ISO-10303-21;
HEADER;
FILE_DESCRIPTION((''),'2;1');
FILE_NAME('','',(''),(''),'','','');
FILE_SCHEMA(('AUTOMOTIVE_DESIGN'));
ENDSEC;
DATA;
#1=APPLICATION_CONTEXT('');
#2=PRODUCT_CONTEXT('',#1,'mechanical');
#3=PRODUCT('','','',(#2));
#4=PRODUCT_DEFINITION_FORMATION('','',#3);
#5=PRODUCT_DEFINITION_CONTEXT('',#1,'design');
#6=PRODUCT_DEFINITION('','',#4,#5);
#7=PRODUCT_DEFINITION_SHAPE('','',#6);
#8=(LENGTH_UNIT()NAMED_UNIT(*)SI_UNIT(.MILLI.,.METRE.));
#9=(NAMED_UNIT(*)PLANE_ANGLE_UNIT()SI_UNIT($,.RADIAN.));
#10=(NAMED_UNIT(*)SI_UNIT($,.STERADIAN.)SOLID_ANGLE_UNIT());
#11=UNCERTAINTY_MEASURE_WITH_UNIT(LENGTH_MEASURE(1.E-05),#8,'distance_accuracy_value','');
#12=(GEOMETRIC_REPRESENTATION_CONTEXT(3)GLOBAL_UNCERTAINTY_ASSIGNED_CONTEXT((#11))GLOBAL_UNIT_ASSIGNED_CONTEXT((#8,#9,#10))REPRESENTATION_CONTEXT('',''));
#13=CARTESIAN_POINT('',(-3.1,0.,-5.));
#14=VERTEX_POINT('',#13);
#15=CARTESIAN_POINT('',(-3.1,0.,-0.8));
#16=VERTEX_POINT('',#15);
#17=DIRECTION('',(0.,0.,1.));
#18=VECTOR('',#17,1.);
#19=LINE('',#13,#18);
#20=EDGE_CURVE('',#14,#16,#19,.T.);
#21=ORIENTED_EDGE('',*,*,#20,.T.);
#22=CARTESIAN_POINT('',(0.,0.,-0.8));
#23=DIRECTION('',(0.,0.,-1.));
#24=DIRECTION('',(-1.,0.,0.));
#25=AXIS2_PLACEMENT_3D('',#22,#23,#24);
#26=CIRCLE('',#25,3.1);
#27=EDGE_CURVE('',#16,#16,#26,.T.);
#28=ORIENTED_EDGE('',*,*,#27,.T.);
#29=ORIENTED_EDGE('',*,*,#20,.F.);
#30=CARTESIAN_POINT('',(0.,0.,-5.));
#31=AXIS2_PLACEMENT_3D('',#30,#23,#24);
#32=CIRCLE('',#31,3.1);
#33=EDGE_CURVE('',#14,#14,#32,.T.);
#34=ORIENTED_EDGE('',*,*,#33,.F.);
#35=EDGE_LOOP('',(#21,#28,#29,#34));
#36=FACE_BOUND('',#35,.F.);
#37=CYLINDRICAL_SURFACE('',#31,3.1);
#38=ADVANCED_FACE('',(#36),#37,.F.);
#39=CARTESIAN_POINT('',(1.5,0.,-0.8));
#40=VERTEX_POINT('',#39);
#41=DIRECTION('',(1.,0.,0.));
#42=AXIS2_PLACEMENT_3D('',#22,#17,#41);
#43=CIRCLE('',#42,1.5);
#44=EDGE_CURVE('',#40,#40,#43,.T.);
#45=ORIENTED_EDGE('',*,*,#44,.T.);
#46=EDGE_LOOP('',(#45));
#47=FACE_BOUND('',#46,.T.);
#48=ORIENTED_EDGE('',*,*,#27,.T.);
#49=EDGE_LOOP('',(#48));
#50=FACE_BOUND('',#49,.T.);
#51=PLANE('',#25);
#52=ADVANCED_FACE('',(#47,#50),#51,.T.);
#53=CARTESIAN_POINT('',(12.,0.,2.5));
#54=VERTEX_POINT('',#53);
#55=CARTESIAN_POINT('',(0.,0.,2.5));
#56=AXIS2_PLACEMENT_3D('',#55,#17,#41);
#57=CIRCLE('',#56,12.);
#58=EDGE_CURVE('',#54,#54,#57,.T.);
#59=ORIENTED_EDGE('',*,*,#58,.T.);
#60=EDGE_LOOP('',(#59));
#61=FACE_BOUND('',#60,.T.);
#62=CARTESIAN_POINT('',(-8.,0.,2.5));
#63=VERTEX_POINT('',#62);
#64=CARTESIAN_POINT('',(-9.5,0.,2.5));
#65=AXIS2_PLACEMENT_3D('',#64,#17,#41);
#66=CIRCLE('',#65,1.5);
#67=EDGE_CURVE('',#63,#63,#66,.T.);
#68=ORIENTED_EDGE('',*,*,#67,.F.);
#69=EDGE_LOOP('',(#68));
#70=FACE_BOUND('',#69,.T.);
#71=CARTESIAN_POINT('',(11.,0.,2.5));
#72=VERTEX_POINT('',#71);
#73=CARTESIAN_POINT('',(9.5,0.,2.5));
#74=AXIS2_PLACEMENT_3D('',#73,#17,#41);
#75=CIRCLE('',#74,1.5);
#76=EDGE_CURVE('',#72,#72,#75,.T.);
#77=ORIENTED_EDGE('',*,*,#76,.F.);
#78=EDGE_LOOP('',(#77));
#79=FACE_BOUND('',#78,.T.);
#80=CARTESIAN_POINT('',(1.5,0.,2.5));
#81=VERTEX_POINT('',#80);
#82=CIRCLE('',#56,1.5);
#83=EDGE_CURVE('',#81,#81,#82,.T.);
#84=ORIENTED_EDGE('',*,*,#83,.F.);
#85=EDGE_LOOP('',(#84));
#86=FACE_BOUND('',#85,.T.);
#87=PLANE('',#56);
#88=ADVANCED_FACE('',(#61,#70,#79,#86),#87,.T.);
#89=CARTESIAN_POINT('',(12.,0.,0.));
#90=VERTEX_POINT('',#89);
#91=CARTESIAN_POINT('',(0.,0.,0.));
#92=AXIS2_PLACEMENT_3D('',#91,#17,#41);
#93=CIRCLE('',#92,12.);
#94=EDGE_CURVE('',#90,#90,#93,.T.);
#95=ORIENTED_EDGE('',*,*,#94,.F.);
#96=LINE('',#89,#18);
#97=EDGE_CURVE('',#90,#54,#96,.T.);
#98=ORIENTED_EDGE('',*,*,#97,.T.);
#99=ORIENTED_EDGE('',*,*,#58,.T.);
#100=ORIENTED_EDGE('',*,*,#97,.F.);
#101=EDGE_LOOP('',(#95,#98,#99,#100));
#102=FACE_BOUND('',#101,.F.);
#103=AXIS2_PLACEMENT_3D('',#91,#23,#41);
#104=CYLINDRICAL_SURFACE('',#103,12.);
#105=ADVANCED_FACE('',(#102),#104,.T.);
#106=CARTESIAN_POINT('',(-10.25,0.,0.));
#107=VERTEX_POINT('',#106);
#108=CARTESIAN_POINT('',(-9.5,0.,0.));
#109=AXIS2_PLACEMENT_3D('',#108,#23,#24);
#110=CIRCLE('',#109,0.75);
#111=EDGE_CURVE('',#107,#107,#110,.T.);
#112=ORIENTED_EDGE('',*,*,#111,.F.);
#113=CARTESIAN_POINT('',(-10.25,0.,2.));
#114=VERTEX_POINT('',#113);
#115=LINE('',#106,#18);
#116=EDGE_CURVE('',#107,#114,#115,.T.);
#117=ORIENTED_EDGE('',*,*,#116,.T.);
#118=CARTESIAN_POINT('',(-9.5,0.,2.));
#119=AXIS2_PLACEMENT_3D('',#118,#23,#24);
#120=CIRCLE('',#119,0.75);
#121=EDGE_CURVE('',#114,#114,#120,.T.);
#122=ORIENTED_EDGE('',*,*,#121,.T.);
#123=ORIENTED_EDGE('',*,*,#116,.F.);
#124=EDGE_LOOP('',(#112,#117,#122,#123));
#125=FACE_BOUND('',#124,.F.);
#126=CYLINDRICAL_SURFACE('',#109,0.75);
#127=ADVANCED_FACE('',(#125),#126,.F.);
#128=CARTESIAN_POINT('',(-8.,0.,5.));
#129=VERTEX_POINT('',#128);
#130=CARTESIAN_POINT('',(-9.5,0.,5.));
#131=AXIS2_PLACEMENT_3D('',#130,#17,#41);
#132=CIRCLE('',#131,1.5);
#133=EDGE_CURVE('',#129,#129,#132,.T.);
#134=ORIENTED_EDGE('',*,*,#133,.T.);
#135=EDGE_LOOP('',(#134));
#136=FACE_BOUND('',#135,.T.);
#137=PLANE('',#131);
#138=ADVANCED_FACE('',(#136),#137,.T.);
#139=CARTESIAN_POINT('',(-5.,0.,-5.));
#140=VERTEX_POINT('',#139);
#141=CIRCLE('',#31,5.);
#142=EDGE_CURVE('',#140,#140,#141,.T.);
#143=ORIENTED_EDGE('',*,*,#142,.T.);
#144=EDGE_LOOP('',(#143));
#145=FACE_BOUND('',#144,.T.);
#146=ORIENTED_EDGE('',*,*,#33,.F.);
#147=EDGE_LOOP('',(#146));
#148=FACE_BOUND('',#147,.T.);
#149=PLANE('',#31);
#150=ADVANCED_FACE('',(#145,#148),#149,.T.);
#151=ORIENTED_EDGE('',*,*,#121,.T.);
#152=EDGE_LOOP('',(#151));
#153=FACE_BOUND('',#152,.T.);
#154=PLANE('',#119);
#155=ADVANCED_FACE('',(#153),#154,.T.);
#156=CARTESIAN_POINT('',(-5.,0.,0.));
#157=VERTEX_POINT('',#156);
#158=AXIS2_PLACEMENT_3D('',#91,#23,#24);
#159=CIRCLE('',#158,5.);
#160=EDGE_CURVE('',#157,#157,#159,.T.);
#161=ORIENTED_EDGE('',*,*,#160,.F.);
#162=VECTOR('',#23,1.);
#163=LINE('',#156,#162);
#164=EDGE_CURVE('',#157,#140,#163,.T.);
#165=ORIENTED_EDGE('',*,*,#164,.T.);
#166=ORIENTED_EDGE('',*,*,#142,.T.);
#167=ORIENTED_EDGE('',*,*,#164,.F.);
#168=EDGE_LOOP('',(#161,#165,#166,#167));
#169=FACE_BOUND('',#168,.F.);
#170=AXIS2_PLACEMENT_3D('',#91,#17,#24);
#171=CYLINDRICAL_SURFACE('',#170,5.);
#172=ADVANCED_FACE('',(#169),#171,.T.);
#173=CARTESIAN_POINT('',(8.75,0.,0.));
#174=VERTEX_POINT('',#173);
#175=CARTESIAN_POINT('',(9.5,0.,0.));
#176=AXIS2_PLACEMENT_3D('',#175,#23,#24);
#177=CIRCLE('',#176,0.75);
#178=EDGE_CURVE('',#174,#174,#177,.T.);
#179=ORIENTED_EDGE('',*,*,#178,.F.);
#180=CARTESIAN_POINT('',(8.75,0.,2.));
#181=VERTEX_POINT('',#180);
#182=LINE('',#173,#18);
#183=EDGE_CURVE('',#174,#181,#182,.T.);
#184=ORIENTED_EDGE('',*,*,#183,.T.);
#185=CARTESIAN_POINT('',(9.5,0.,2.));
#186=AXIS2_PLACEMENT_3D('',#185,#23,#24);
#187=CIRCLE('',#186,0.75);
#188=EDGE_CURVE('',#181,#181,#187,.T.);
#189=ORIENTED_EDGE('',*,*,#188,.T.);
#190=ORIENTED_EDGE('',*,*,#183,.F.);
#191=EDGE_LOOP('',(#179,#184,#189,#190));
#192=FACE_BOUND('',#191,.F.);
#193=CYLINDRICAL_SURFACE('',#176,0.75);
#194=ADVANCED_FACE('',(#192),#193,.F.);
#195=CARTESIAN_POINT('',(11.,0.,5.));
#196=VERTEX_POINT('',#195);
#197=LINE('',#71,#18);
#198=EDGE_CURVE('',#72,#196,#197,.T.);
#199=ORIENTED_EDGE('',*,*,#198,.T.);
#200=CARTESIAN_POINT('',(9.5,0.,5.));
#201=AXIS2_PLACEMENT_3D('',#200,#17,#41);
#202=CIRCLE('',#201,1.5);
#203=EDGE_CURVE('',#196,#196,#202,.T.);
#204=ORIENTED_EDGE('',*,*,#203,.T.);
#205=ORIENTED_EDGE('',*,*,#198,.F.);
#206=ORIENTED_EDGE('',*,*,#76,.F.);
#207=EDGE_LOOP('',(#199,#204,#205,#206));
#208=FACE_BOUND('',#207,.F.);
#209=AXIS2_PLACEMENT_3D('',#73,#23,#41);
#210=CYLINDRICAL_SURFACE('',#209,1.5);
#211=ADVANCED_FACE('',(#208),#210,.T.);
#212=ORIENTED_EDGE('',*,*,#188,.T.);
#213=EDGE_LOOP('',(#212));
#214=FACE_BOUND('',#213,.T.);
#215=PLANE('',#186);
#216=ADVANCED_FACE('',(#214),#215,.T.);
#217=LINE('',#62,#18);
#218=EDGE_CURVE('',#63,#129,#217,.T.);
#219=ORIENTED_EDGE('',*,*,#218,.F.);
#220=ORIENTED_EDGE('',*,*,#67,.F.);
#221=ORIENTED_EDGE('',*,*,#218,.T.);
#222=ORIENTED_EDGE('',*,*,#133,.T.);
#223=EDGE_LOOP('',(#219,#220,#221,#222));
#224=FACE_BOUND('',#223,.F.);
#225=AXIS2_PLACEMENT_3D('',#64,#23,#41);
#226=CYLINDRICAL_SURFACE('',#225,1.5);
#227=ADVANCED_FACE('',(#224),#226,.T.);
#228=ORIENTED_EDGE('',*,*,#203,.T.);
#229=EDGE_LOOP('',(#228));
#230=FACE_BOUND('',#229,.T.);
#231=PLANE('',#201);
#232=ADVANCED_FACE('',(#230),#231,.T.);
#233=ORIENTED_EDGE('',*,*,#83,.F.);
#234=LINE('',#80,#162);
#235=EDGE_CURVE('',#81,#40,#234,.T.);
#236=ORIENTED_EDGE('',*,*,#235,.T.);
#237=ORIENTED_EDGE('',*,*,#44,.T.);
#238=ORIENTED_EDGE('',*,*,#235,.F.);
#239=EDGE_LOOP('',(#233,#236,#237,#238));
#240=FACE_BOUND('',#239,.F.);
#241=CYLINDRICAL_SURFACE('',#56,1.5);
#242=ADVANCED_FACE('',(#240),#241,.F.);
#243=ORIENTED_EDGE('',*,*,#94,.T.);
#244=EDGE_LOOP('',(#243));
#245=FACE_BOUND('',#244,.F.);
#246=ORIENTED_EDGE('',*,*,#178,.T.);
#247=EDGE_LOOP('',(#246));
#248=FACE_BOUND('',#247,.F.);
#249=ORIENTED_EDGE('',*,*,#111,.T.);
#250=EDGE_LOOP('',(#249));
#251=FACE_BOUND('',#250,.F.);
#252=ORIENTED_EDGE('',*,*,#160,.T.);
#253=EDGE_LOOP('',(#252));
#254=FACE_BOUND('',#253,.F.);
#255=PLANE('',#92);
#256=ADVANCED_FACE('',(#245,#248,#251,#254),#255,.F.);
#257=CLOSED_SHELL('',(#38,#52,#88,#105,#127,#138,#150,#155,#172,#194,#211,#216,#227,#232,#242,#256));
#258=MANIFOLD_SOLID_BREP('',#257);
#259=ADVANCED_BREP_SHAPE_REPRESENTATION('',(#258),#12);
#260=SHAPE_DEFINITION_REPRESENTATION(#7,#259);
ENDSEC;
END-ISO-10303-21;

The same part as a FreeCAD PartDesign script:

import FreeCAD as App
import Part
import Sketcher

V = App.Vector
Q = App.Units.Quantity

doc = App.newDocument("Part")
body = doc.addObject("PartDesign::Body", "Body")

sketch1 = doc.addObject("Sketcher::SketchObject", "Sketch")
body.addObject(sketch1)
sketch1.AttachmentSupport = (doc.XY_Plane, [""])
sketch1.MapMode = "FlatFace"
sketch1.addGeometry(Part.Circle(V(0, 0, 0), V(0, 0, 1), 12), False)
sketch1.addConstraint(Sketcher.Constraint("Coincident", 0, 3, -1, 1))
sketch1.addConstraint(Sketcher.Constraint("Diameter", 0, Q("24 mm")))
pad1 = doc.addObject("PartDesign::Pad", "Pad")
body.addObject(pad1)
pad1.Profile = sketch1
pad1.Length = 2.5

sketch2 = doc.addObject("Sketcher::SketchObject", "Sketch001")
body.addObject(sketch2)
sketch2.AttachmentSupport = (doc.XY_Plane, [""])
sketch2.MapMode = "FlatFace"
sketch2.addGeometry(Part.Circle(V(0, 0, 0), V(0, 0, 1), 5), False)
sketch2.addConstraint(Sketcher.Constraint("Coincident", 0, 3, -1, 1))
sketch2.addConstraint(Sketcher.Constraint("Diameter", 0, Q("10 mm")))
pad2 = doc.addObject("PartDesign::Pad", "Pad001")
body.addObject(pad2)
pad2.Profile = sketch2
pad2.Length = 5
pad2.Reversed = True

sketch3 = doc.addObject("Sketcher::SketchObject", "Sketch002")
body.addObject(sketch3)
sketch3.AttachmentSupport = (doc.XY_Plane, [""])
sketch3.MapMode = "FlatFace"
sketch3.AttachmentOffset = App.Placement(V(0, 0, -5), App.Rotation())
sketch3.addGeometry(Part.Circle(V(0, 0, 0), V(0, 0, 1), 3.1), False)
sketch3.addConstraint(Sketcher.Constraint("Coincident", 0, 3, -1, 1))
sketch3.addConstraint(Sketcher.Constraint("Diameter", 0, Q("6.2 mm")))
pocket1 = doc.addObject("PartDesign::Pocket", "Pocket")
body.addObject(pocket1)
pocket1.Profile = sketch3
pocket1.Length = 4.2
pocket1.Reversed = True

sketch4 = doc.addObject("Sketcher::SketchObject", "Sketch003")
body.addObject(sketch4)
sketch4.AttachmentSupport = (doc.XY_Plane, [""])
sketch4.MapMode = "FlatFace"
sketch4.AttachmentOffset = App.Placement(V(0, 0, 2.5), App.Rotation())
sketch4.addGeometry(Part.Circle(V(0, 0, 0), V(0, 0, 1), 1.5), False)
sketch4.addConstraint(Sketcher.Constraint("Coincident", 0, 3, -1, 1))
sketch4.addConstraint(Sketcher.Constraint("Diameter", 0, Q("3 mm")))
pocket2 = doc.addObject("PartDesign::Pocket", "Pocket001")
body.addObject(pocket2)
pocket2.Profile = sketch4
pocket2.Length = 4

sketch5 = doc.addObject("Sketcher::SketchObject", "Sketch004")
body.addObject(sketch5)
sketch5.AttachmentSupport = (doc.XY_Plane, [""])
sketch5.MapMode = "FlatFace"
sketch5.AttachmentOffset = App.Placement(V(0, 0, 2.5), App.Rotation())
sketch5.addGeometry(Part.Circle(V(9.5, 0, 0), V(0, 0, 1), 1.5), False)
sketch5.addGeometry(Part.Circle(V(-9.5, 0, 0), V(0, 0, 1), 1.5), False)
sketch5.addConstraint(Sketcher.Constraint("Equal", 0, 1))
sketch5.addConstraint(Sketcher.Constraint("Symmetric", 0, 3, 1, 3, -1, 1))
sketch5.addConstraint(Sketcher.Constraint("PointOnObject", 0, 3, -1))
sketch5.addConstraint(Sketcher.Constraint("Diameter", 0, Q("3 mm")))
sketch5.addConstraint(Sketcher.Constraint("DistanceX", 1, 3, 0, 3, Q("19 mm")))
pad3 = doc.addObject("PartDesign::Pad", "Pad002")
body.addObject(pad3)
pad3.Profile = sketch5
pad3.Length = 2.5

sketch6 = doc.addObject("Sketcher::SketchObject", "Sketch005")
body.addObject(sketch6)
sketch6.AttachmentSupport = (doc.XY_Plane, [""])
sketch6.MapMode = "FlatFace"
sketch6.addGeometry(Part.Circle(V(9.5, 0, 0), V(0, 0, 1), 0.8), False)
sketch6.addGeometry(Part.Circle(V(-9.5, 0, 0), V(0, 0, 1), 0.8), False)
sketch6.addConstraint(Sketcher.Constraint("Equal", 0, 1))
sketch6.addConstraint(Sketcher.Constraint("Symmetric", 0, 3, 1, 3, -1, 1))
sketch6.addConstraint(Sketcher.Constraint("PointOnObject", 0, 3, -1))
sketch6.addConstraint(Sketcher.Constraint("Diameter", 0, Q("1.5 mm")))
sketch6.addConstraint(Sketcher.Constraint("DistanceX", 1, 3, 0, 3, Q("19 mm")))
pocket3 = doc.addObject("PartDesign::Pocket", "Pocket002")
body.addObject(pocket3)
pocket3.Profile = sketch6
pocket3.Length = 2
pocket3.Reversed = True

doc.recompute()
